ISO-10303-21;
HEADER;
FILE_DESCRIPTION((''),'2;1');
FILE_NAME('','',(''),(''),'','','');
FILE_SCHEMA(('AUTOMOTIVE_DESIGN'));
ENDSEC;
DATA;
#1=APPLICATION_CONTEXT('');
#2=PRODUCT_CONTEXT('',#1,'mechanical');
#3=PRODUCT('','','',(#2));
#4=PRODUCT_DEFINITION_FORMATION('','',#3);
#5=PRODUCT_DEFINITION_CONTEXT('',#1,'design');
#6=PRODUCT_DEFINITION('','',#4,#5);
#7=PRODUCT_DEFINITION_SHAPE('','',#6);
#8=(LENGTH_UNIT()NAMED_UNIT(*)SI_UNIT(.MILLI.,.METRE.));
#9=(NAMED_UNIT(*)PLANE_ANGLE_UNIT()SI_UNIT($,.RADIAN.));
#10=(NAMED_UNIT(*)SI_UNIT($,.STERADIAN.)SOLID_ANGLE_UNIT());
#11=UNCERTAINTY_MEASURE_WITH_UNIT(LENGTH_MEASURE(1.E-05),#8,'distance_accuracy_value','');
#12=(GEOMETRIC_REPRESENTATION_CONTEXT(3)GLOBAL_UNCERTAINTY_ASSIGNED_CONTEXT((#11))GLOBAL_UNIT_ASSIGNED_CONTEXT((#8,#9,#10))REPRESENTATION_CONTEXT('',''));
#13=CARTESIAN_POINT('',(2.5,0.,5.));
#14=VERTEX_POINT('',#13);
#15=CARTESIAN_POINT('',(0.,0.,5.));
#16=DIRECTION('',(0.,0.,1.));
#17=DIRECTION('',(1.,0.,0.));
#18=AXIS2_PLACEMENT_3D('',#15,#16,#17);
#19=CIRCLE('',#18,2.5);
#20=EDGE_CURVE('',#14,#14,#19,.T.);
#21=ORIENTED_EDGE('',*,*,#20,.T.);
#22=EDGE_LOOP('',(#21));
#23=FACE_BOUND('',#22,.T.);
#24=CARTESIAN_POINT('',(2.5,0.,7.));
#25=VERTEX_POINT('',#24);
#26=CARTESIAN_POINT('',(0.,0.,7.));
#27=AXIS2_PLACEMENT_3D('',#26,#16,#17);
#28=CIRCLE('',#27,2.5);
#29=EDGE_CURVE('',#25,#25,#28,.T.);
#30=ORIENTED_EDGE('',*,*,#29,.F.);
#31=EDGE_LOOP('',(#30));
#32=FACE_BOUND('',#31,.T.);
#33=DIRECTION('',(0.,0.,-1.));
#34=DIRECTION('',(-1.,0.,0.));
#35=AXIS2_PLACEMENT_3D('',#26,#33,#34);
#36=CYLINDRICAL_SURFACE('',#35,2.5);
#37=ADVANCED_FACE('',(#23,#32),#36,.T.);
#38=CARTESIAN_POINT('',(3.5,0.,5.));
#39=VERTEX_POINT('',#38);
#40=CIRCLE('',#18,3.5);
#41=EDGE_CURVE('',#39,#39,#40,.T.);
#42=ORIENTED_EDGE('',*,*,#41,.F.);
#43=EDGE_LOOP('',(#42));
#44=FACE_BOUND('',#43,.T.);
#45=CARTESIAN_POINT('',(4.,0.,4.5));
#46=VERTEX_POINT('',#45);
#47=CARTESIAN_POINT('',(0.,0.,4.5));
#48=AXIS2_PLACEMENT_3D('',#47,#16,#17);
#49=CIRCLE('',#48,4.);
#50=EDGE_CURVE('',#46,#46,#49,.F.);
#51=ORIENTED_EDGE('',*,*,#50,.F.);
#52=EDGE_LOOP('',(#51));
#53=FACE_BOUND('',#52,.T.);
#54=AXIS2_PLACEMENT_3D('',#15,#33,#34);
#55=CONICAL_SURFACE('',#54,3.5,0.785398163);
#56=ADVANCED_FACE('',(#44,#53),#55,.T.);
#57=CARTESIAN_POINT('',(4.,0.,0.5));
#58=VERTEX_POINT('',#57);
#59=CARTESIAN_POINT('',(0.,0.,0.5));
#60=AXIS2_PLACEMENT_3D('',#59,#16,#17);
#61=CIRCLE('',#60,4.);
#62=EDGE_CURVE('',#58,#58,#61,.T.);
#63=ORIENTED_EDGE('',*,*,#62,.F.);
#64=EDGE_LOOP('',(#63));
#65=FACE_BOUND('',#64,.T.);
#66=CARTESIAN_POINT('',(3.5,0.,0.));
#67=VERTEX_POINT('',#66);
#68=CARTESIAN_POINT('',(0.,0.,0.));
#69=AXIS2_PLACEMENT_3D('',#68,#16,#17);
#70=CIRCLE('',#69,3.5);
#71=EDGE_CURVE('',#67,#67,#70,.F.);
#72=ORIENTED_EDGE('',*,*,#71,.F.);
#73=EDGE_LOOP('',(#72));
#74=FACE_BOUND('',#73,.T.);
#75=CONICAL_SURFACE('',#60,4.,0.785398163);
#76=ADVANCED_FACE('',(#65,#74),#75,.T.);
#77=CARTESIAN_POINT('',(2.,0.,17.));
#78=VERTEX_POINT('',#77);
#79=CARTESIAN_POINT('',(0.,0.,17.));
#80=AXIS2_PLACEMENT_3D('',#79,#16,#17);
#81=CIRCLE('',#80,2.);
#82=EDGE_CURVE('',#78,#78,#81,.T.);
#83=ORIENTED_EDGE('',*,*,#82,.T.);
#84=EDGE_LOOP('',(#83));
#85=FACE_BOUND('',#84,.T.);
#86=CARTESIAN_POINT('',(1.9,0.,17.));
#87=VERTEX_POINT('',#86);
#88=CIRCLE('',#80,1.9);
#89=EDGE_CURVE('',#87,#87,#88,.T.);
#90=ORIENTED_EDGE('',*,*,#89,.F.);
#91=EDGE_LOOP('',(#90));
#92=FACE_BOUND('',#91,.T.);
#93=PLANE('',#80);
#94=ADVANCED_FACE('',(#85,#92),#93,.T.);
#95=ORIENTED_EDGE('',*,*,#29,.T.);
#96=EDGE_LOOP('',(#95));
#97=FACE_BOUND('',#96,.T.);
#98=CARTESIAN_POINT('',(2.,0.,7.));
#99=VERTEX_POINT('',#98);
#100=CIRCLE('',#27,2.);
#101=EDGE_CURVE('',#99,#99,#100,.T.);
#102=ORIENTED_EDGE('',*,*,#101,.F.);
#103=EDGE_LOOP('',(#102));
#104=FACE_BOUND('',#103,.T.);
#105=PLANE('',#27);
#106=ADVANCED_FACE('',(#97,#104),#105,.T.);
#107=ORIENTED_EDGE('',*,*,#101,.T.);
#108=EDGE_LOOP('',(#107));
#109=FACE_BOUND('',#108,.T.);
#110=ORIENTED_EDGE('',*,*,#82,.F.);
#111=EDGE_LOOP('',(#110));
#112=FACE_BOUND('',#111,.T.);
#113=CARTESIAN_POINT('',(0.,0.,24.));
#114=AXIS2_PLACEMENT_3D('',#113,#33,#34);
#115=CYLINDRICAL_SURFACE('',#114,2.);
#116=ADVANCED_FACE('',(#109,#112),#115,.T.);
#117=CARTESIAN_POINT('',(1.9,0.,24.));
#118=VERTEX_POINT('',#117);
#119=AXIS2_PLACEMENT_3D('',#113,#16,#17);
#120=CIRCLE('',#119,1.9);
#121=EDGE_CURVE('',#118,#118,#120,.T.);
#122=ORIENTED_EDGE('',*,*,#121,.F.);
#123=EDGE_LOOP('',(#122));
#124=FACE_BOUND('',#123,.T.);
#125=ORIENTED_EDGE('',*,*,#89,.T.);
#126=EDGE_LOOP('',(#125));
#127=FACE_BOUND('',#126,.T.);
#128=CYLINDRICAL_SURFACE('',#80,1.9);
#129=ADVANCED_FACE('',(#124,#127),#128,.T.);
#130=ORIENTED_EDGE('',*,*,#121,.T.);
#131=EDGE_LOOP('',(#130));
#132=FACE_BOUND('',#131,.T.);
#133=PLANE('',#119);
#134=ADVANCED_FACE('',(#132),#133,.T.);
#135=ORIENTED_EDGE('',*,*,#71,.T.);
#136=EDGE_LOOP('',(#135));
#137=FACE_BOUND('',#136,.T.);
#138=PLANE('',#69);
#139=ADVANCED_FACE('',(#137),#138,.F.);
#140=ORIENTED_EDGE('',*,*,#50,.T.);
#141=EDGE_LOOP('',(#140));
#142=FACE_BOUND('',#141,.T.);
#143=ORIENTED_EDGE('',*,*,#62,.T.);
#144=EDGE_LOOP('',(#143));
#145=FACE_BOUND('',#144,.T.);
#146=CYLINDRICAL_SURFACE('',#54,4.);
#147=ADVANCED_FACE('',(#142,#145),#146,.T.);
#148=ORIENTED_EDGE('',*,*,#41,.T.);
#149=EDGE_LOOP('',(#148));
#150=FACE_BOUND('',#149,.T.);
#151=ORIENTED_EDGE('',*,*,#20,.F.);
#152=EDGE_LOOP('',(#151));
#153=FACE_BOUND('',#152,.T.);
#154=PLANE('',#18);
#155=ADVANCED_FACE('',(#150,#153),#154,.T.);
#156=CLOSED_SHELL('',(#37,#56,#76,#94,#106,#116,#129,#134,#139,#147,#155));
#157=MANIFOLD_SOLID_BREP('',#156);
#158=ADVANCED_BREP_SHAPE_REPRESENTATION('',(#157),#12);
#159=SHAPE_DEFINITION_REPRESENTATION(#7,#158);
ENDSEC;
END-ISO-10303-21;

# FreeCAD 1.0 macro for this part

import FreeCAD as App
import Part
import Sketcher
Q = App.Units.Quantity


def edges_at(feature, points):
    """Names of the edges that pass closest to the given points."""
    edges = feature.Shape.Edges
    near = lambda p: min(range(len(edges)), key=lambda i: edges[i].distToShape(Part.Vertex(*p))[0])
    return sorted({f"Edge{near(p) + 1}" for p in points})

doc = App.newDocument("Part")
body = doc.addObject("PartDesign::Body", "Body")

# Sketch on XY plane
sketch1 = doc.addObject("Sketcher::SketchObject", "Sketch")
body.addObject(sketch1)
sketch1.AttachmentSupport = (doc.XY_Plane, [""])
sketch1.MapMode = "FlatFace"
sketch1.addGeometry(Part.Circle(App.Vector(0, 0, 0), App.Vector(0, 0, 1), 4), False)
sketch1.addConstraint(Sketcher.Constraint("Coincident", 0, 3, -1, 1))
sketch1.addConstraint(Sketcher.Constraint("Diameter", 0, Q("8 mm")))
pad1 = doc.addObject("PartDesign::Pad", "Pad")
body.addObject(pad1)
pad1.Profile = sketch1
pad1.Length = 5

# Sketch on XY plane
sketch2 = doc.addObject("Sketcher::SketchObject", "Sketch001")
body.addObject(sketch2)
sketch2.AttachmentSupport = (doc.XY_Plane, [""])
sketch2.MapMode = "FlatFace"
sketch2.AttachmentOffset = App.Placement(App.Vector(0, 0, 5), App.Rotation())
sketch2.addGeometry(Part.Circle(App.Vector(0, 0, 0), App.Vector(0, 0, 1), 2.5), False)
sketch2.addConstraint(Sketcher.Constraint("Coincident", 0, 3, -1, 1))
sketch2.addConstraint(Sketcher.Constraint("Diameter", 0, Q("5 mm")))
pad2 = doc.addObject("PartDesign::Pad", "Pad001")
body.addObject(pad2)
pad2.Profile = sketch2
pad2.Length = 2

# Sketch on XY plane
sketch3 = doc.addObject("Sketcher::SketchObject", "Sketch002")
body.addObject(sketch3)
sketch3.AttachmentSupport = (doc.XY_Plane, [""])
sketch3.MapMode = "FlatFace"
sketch3.AttachmentOffset = App.Placement(App.Vector(0, 0, 7), App.Rotation())
sketch3.addGeometry(Part.Circle(App.Vector(0, 0, 0), App.Vector(0, 0, 1), 2), False)
sketch3.addConstraint(Sketcher.Constraint("Coincident", 0, 3, -1, 1))
sketch3.addConstraint(Sketcher.Constraint("Diameter", 0, Q("4 mm")))
pad3 = doc.addObject("PartDesign::Pad", "Pad002")
body.addObject(pad3)
pad3.Profile = sketch3
pad3.Length = 17
doc.recompute()

chamfer = doc.addObject("PartDesign::Chamfer", "Chamfer")
body.addObject(chamfer)
chamfer.Base = (pad3, edges_at(pad3, [(-4, 0, 0)]))
chamfer.Size = 0.5
doc.recompute()

chamfer2 = doc.addObject("PartDesign::Chamfer", "Chamfer001")
body.addObject(chamfer2)
chamfer2.Base = (chamfer, edges_at(chamfer, [(-4, 0, 5)]))
chamfer2.Size = 0.5

# Sketch on XY plane
sketch4 = doc.addObject("Sketcher::SketchObject", "Sketch003")
body.addObject(sketch4)
sketch4.AttachmentSupport = (doc.XY_Plane, [""])
sketch4.MapMode = "FlatFace"
sketch4.AttachmentOffset = App.Placement(App.Vector(0, 0, 17), App.Rotation())
sketch4.addGeometry(Part.Circle(App.Vector(0, 0, 0), App.Vector(0, 0, 1), 2), False)
sketch4.addGeometry(Part.Circle(App.Vector(0, 0, 0), App.Vector(0, 0, 1), 1.9), False)
sketch4.addConstraint(Sketcher.Constraint("Coincident", 0, 3, -1, 1))
sketch4.addConstraint(Sketcher.Constraint("Coincident", 1, 3, -1, 1))
sketch4.addConstraint(Sketcher.Constraint("Diameter", 0, Q("4 mm")))
sketch4.addConstraint(Sketcher.Constraint("Diameter", 1, Q("3.8 mm")))
pocket1 = doc.addObject("PartDesign::Pocket", "Pocket")
body.addObject(pocket1)
pocket1.Profile = sketch4
pocket1.Length = 7
pocket1.Reversed = True

doc.recompute()
